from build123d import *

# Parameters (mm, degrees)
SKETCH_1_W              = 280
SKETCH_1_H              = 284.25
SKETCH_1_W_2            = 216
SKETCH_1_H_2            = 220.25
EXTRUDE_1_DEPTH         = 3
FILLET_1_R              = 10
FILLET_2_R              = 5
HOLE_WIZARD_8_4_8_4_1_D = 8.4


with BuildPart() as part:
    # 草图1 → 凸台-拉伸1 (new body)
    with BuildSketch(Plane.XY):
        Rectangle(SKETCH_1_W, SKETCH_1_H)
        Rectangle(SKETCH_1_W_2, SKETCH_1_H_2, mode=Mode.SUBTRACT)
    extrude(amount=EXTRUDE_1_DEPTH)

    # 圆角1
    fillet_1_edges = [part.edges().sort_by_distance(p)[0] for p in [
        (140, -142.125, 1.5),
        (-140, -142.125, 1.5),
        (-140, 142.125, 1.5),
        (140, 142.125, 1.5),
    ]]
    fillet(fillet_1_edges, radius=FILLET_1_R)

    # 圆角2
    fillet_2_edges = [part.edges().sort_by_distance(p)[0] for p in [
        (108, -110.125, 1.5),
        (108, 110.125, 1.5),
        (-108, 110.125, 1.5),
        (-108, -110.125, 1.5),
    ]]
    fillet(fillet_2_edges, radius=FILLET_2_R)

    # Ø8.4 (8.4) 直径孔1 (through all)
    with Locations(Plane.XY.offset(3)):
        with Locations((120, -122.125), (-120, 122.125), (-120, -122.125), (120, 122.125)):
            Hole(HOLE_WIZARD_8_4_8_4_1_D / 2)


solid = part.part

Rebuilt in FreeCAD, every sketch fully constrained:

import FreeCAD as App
import Part
import Sketcher
from FreeCAD import Vector
Q = App.Units.Quantity


def edges_at(feature, points):
    """Names of the edges that pass closest to the given points."""
    edges = feature.Shape.Edges
    near = lambda p: min(range(len(edges)), key=lambda i: edges[i].distToShape(Part.Vertex(*p))[0])
    return sorted({f"Edge{near(p) + 1}" for p in points})

doc = App.newDocument("Part")
params = doc.addObject("Spreadsheet::Sheet", "Params")
for row, (alias, value) in enumerate([
    ("sketch1_width", "280 mm"),
    ("sketch1_width2", "216 mm"),
    ("sketch1_height", "284.25 mm"),
    ("pad1_length", "3 mm"),
    ("fillet_radius", "10 mm"),
    ("fillet2_radius", "5 mm"),
    ("sketch2_diameter", "8.4 mm"),
    ("hole_diameter", "8.4 mm"),
], start=1):
    params.set(f"A{row}", alias)
    params.set(f"B{row}", "=" + value)
    params.setAlias(f"B{row}", alias)

body = doc.addObject("PartDesign::Body", "Body")

sketch1 = body.newObject("Sketcher::SketchObject", "Sketch")
sketch1.AttachmentSupport = (doc.getObject("XY_Plane"), [""])
sketch1.MapMode = "FlatFace"
sketch1.addGeometry([
    Part.LineSegment(Vector(-140, 142, 0), Vector(-140, -142, 0)),
    Part.LineSegment(Vector(-140, -142, 0), Vector(140, -142, 0)),
    Part.LineSegment(Vector(140, -142, 0), Vector(140, 142, 0)),
    Part.LineSegment(Vector(140, 142, 0), Vector(-140, 142, 0)),
    Part.LineSegment(Vector(108, -110, 0), Vector(-108, -110, 0)),
    Part.LineSegment(Vector(-108, -110, 0), Vector(-108, 110, 0)),
    Part.LineSegment(Vector(-108, 110, 0), Vector(108, 110, 0)),
    Part.LineSegment(Vector(108, 110, 0), Vector(108, -110, 0)),
], False)
sketch1.addConstraint([
    Sketcher.Constraint("Coincident", 0, 2, 1, 1),
    Sketcher.Constraint("Coincident", 1, 2, 2, 1),
    Sketcher.Constraint("Coincident", 2, 2, 3, 1),
    Sketcher.Constraint("Coincident", 3, 2, 0, 1),
    Sketcher.Constraint("Coincident", 4, 2, 5, 1),
    Sketcher.Constraint("Coincident", 5, 2, 6, 1),
    Sketcher.Constraint("Coincident", 6, 2, 7, 1),
    Sketcher.Constraint("Coincident", 7, 2, 4, 1),
    Sketcher.Constraint("Vertical", 0),
    Sketcher.Constraint("Horizontal", 1),
    Sketcher.Constraint("Vertical", 2),
    Sketcher.Constraint("Horizontal", 3),
    Sketcher.Constraint("Horizontal", 4),
    Sketcher.Constraint("Vertical", 5),
    Sketcher.Constraint("Horizontal", 6),
    Sketcher.Constraint("Vertical", 7),
    Sketcher.Constraint("Symmetric", 0, 2, 2, 2, -1, 1),
    Sketcher.Constraint("Symmetric", 4, 2, 6, 2, -1, 1),
    Sketcher.Constraint("DistanceX", 1, 1, 1, 2, Q("280 mm")),
    Sketcher.Constraint("DistanceX", 4, 2, 4, 1, Q("216 mm")),
    Sketcher.Constraint("DistanceY", 0, 2, 4, 2, Q("32 mm")),
    Sketcher.Constraint("DistanceY", 0, 2, 0, 1, Q("284.25 mm")),
])
sketch1.setExpression("Constraints[18]", "Params.sketch1_width")
sketch1.setExpression("Constraints[19]", "Params.sketch1_width2")
sketch1.setExpression("Constraints[21]", "Params.sketch1_height")
pad1 = body.newObject("PartDesign::Pad", "Pad")
pad1.Profile = sketch1
pad1.setExpression("Length", "Params.pad1_length")
doc.recompute()

fillet = body.newObject("PartDesign::Fillet", "Fillet")
fillet.Base = (pad1, edges_at(pad1, [
    (140, -142.125, 1.5),
    (-140, -142.125, 1.5),
    (-140, 142.125, 1.5),
    (140, 142.125, 1.5),
]))
fillet.setExpression("Radius", "Params.fillet_radius")
doc.recompute()

fillet2 = body.newObject("PartDesign::Fillet", "Fillet001")
fillet2.Base = (fillet, edges_at(fillet, [
    (108, -110.125, 1.5),
    (108, 110.125, 1.5),
    (-108, 110.125, 1.5),
    (-108, -110.125, 1.5),
]))
fillet2.setExpression("Radius", "Params.fillet2_radius")

sketch2 = body.newObject("Sketcher::SketchObject", "Sketch001")
sketch2.AttachmentSupport = (doc.getObject("XY_Plane"), [""])
sketch2.MapMode = "FlatFace"
sketch2.AttachmentOffset = App.Placement(Vector(0, 0, 3), App.Rotation())
sketch2.addGeometry([
    Part.Circle(Vector(120, -122.1, 0), Vector(0, 0, 1), 4.2),
    Part.Circle(Vector(-120, 122.1, 0), Vector(0, 0, 1), 4.2),
    Part.Circle(Vector(-120, -122.1, 0), Vector(0, 0, 1), 4.2),
    Part.Circle(Vector(120, 122.1, 0), Vector(0, 0, 1), 4.2),
], False)
sketch2.addConstraint([
    Sketcher.Constraint("Equal", 0, 1),
    Sketcher.Constraint("Equal", 1, 2),
    Sketcher.Constraint("Equal", 2, 3),
    Sketcher.Constraint("Symmetric", 0, 3, 1, 3, -1, 1),
    Sketcher.Constraint("Symmetric", 2, 3, 3, 3, -1, 1),
    Sketcher.Constraint("Symmetric", 0, 3, 2, 3, -2),
    Sketcher.Constraint("Diameter", 0, Q("8.4 mm")),
    Sketcher.Constraint("DistanceX", -1, 1, 0, 3, Q("120 mm")),
    Sketcher.Constraint("DistanceY", 0, 3, 1, 3, Q("244.25 mm")),
])
sketch2.setExpression("Constraints[6]", "Params.sketch2_diameter")
doc.recompute()
hole = body.newObject("PartDesign::Hole", "Hole")
hole.Profile = sketch2
hole.ThreadType = "None"
hole.setExpression("Diameter", "Params.hole_diameter")
hole.DepthType = "ThroughAll"

doc.recompute()
